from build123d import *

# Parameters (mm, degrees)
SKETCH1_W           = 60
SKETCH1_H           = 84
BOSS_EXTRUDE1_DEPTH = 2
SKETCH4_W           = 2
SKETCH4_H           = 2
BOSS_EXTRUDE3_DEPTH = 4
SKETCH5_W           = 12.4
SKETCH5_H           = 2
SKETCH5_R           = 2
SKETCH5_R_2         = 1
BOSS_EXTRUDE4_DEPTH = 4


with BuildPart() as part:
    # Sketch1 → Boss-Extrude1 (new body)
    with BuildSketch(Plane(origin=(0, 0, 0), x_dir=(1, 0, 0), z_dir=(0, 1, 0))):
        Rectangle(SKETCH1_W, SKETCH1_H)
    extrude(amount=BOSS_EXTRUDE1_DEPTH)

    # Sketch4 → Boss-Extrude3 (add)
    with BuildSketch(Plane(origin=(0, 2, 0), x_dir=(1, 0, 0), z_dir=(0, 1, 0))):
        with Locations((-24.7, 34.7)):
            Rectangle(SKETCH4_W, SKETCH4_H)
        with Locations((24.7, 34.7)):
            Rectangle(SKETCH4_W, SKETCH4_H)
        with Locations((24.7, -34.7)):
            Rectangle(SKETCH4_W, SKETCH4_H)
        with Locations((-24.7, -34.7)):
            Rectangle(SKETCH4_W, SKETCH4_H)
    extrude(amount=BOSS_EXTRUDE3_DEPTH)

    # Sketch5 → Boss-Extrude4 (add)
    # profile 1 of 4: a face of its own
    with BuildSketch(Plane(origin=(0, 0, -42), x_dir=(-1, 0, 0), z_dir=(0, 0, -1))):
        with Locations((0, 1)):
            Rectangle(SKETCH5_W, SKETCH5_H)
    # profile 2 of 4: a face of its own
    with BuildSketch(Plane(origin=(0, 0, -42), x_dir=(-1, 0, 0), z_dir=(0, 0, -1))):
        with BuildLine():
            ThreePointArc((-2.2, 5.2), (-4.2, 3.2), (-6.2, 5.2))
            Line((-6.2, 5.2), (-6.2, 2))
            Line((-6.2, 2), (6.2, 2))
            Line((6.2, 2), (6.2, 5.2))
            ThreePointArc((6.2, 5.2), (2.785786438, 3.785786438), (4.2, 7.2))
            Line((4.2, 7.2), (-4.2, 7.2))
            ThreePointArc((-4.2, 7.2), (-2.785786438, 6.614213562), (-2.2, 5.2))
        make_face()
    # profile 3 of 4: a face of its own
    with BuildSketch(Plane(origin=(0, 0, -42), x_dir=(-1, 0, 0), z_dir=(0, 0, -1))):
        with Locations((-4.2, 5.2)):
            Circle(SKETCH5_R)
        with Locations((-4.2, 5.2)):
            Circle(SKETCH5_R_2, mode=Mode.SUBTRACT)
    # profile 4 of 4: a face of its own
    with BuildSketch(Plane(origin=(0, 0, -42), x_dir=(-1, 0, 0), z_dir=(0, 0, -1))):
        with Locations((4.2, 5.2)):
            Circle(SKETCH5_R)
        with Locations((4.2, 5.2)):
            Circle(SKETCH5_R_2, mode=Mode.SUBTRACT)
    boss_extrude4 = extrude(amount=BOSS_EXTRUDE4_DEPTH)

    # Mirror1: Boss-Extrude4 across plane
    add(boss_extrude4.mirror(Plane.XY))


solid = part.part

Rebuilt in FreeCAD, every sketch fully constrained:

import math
import FreeCAD as App
import Part
import Sketcher
from FreeCAD import Vector


def add_polygon(sketch, points):
    """Adds a closed chain of lines whose ends are joined by coincident constraints."""
    first, n = sketch.GeometryCount, len(points)
    for a, b in zip(points, points[1:] + points[:1]):
        sketch.addGeometry(Part.LineSegment(App.Vector(*a, 0), App.Vector(*b, 0)), False)
    for i in range(n):
        sketch.addConstraint(Sketcher.Constraint("Coincident", first + i, 2, first + (i + 1) % n, 1))

doc = App.newDocument("Part")
body = doc.addObject("PartDesign::Body", "Body")

sketch1 = body.newObject("Sketcher::SketchObject", "Sketch")
sketch1.AttachmentSupport = (doc.getObject("XZ_Plane"), [""])
sketch1.MapMode = "FlatFace"
add_polygon(sketch1, [(-30, -42), (-30, 42), (30, 42), (30, -42)])
sketch1.addConstraint(Sketcher.Constraint("Vertical", 0))
sketch1.addConstraint(Sketcher.Constraint("Horizontal", 1))
sketch1.addConstraint(Sketcher.Constraint("Vertical", 2))
sketch1.addConstraint(Sketcher.Constraint("Horizontal", 3))
sketch1.addConstraint(Sketcher.Constraint("Symmetric", 0, 2, 2, 2, -1, 1))
sketch1.addConstraint(Sketcher.Constraint("DistanceX", 1, 1, 1, 2, 60.0))
sketch1.addConstraint(Sketcher.Constraint("DistanceY", 0, 1, 0, 2, 84.0))
pad1 = body.newObject("PartDesign::Pad", "Pad")
pad1.Profile = sketch1
pad1.Length = 2
pad1.Reversed = True

sketch2 = body.newObject("Sketcher::SketchObject", "Sketch001")
sketch2.AttachmentSupport = (doc.getObject("XZ_Plane"), [""])
sketch2.MapMode = "FlatFace"
sketch2.AttachmentOffset = App.Placement(Vector(0, 0, -2), App.Rotation())
add_polygon(sketch2, [(-25.7, -35.7), (-25.7, -33.7), (-23.7, -33.7), (-23.7, -35.7)])
add_polygon(sketch2, [(23.7, -35.7), (23.7, -33.7), (25.7, -33.7), (25.7, -35.7)])
add_polygon(sketch2, [(23.7, 33.7), (23.7, 35.7), (25.7, 35.7), (25.7, 33.7)])
add_polygon(sketch2, [(-25.7, 33.7), (-25.7, 35.7), (-23.7, 35.7), (-23.7, 33.7)])
sketch2.addConstraint(Sketcher.Constraint("Vertical", 0))
sketch2.addConstraint(Sketcher.Constraint("Horizontal", 1))
sketch2.addConstraint(Sketcher.Constraint("Vertical", 2))
sketch2.addConstraint(Sketcher.Constraint("Horizontal", 3))
sketch2.addConstraint(Sketcher.Constraint("Vertical", 4))
sketch2.addConstraint(Sketcher.Constraint("Horizontal", 5))
sketch2.addConstraint(Sketcher.Constraint("Vertical", 6))
sketch2.addConstraint(Sketcher.Constraint("Horizontal", 7))
sketch2.addConstraint(Sketcher.Constraint("Vertical", 8))
sketch2.addConstraint(Sketcher.Constraint("Horizontal", 9))
sketch2.addConstraint(Sketcher.Constraint("Vertical", 10))
sketch2.addConstraint(Sketcher.Constraint("Horizontal", 11))
sketch2.addConstraint(Sketcher.Constraint("Vertical", 12))
sketch2.addConstraint(Sketcher.Constraint("Horizontal", 13))
sketch2.addConstraint(Sketcher.Constraint("Vertical", 14))
sketch2.addConstraint(Sketcher.Constraint("Horizontal", 15))
sketch2.addConstraint(Sketcher.Constraint("Symmetric", 2, 2, 8, 2, -1, 1))
sketch2.addConstraint(Sketcher.Constraint("Symmetric", 0, 2, 10, 2, -1, 1))
sketch2.addConstraint(Sketcher.Constraint("Symmetric", 6, 2, 12, 2, -1, 1))
sketch2.addConstraint(Sketcher.Constraint("Symmetric", 4, 2, 14, 2, -1, 1))
sketch2.addConstraint(Sketcher.Constraint("Symmetric", 1, 2, 4, 2, -2))
sketch2.addConstraint(Sketcher.Constraint("Symmetric", 3, 2, 6, 2, -2))
sketch2.addConstraint(Sketcher.Constraint("Equal", 15, 0))
sketch2.addConstraint(Sketcher.Constraint("DistanceX", 1, 1, 1, 2, 2.0))
sketch2.addConstraint(Sketcher.Constraint("DistanceX", 0, 2, -1, 1, 25.7))
sketch2.addConstraint(Sketcher.Constraint("DistanceY", 0, 2, -1, 1, 33.7))
pad2 = body.newObject("PartDesign::Pad", "Pad001")
pad2.Profile = sketch2
pad2.Length = 4
pad2.Reversed = True

sketch3 = body.newObject("Sketcher::SketchObject", "Sketch002")
sketch3.AttachmentSupport = (doc.getObject("XY_Plane"), [""])
sketch3.MapMode = "FlatFace"
sketch3.AttachmentOffset = App.Placement(Vector(0, 0, -42), App.Rotation())
sketch3.addGeometry(Part.LineSegment(Vector(6.2, 0, 0), Vector(-6.2, 0, 0)), False)
sketch3.addGeometry(Part.LineSegment(Vector(-6.2, 0, 0), Vector(-6.2, 5.2, 0)), False)
sketch3.addGeometry(Part.ArcOfCircle(Part.Circle(Vector(-4.2, 5.2, 0), Vector(0, 0, 1), 2), math.radians(90), math.radians(180)), False)
sketch3.addGeometry(Part.LineSegment(Vector(-4.2, 7.2, 0), Vector(4.2, 7.2, 0)), False)
sketch3.addGeometry(Part.ArcOfCircle(Part.Circle(Vector(4.2, 5.2, 0), Vector(0, 0, 1), 2), math.radians(0), math.radians(90)), False)
sketch3.addGeometry(Part.LineSegment(Vector(6.2, 5.2, 0), Vector(6.2, 0, 0)), False)
sketch3.addGeometry(Part.Circle(Vector(4.2, 5.2, 0), Vector(0, 0, 1), 1), False)
sketch3.addGeometry(Part.Circle(Vector(-4.2, 5.2, 0), Vector(0, 0, 1), 1), False)
sketch3.addConstraint(Sketcher.Constraint("Coincident", 0, 2, 1, 1))
sketch3.addConstraint(Sketcher.Constraint("Tangent", 1, 2, 2, 2))
sketch3.addConstraint(Sketcher.Constraint("Tangent", 2, 1, 3, 1))
sketch3.addConstraint(Sketcher.Constraint("Tangent", 3, 2, 4, 2))
sketch3.addConstraint(Sketcher.Constraint("Tangent", 4, 1, 5, 1))
sketch3.addConstraint(Sketcher.Constraint("Coincident", 5, 2, 0, 1))
sketch3.addConstraint(Sketcher.Constraint("Horizontal", 0))
sketch3.addConstraint(Sketcher.Constraint("Vertical", 1))
sketch3.addConstraint(Sketcher.Constraint("Horizontal", 3))
sketch3.addConstraint(Sketcher.Constraint("Vertical", 5))
sketch3.addConstraint(Sketcher.Constraint("Coincident", 6, 3, 4, 3))
sketch3.addConstraint(Sketcher.Constraint("Coincident", 7, 3, 2, 3))
sketch3.addConstraint(Sketcher.Constraint("Equal", 2, 4))
sketch3.addConstraint(Sketcher.Constraint("Equal", 6, 7))
sketch3.addConstraint(Sketcher.Constraint("Symmetric", 0, 2, 5, 2, -1, 1))
sketch3.addConstraint(Sketcher.Constraint("Diameter", 6, 2.0))
sketch3.addConstraint(Sketcher.Constraint("Radius", 2, 2.0))
sketch3.addConstraint(Sketcher.Constraint("DistanceX", 0, 2, 0, 1, 12.4))
sketch3.addConstraint(Sketcher.Constraint("DistanceY", 1, 1, 1, 2, 5.2))
pad3 = body.newObject("PartDesign::Pad", "Pad002")
pad3.Profile = sketch3
pad3.Length = 4
pad3.Reversed = True
doc.recompute()

mirrored = body.newObject("PartDesign::Mirrored", "Mirrored")
mirrored.Originals = [pad3]
mirrored.MirrorPlane = (doc.getObject("XY_Plane"), [""])
body.Tip = mirrored

doc.recompute()
